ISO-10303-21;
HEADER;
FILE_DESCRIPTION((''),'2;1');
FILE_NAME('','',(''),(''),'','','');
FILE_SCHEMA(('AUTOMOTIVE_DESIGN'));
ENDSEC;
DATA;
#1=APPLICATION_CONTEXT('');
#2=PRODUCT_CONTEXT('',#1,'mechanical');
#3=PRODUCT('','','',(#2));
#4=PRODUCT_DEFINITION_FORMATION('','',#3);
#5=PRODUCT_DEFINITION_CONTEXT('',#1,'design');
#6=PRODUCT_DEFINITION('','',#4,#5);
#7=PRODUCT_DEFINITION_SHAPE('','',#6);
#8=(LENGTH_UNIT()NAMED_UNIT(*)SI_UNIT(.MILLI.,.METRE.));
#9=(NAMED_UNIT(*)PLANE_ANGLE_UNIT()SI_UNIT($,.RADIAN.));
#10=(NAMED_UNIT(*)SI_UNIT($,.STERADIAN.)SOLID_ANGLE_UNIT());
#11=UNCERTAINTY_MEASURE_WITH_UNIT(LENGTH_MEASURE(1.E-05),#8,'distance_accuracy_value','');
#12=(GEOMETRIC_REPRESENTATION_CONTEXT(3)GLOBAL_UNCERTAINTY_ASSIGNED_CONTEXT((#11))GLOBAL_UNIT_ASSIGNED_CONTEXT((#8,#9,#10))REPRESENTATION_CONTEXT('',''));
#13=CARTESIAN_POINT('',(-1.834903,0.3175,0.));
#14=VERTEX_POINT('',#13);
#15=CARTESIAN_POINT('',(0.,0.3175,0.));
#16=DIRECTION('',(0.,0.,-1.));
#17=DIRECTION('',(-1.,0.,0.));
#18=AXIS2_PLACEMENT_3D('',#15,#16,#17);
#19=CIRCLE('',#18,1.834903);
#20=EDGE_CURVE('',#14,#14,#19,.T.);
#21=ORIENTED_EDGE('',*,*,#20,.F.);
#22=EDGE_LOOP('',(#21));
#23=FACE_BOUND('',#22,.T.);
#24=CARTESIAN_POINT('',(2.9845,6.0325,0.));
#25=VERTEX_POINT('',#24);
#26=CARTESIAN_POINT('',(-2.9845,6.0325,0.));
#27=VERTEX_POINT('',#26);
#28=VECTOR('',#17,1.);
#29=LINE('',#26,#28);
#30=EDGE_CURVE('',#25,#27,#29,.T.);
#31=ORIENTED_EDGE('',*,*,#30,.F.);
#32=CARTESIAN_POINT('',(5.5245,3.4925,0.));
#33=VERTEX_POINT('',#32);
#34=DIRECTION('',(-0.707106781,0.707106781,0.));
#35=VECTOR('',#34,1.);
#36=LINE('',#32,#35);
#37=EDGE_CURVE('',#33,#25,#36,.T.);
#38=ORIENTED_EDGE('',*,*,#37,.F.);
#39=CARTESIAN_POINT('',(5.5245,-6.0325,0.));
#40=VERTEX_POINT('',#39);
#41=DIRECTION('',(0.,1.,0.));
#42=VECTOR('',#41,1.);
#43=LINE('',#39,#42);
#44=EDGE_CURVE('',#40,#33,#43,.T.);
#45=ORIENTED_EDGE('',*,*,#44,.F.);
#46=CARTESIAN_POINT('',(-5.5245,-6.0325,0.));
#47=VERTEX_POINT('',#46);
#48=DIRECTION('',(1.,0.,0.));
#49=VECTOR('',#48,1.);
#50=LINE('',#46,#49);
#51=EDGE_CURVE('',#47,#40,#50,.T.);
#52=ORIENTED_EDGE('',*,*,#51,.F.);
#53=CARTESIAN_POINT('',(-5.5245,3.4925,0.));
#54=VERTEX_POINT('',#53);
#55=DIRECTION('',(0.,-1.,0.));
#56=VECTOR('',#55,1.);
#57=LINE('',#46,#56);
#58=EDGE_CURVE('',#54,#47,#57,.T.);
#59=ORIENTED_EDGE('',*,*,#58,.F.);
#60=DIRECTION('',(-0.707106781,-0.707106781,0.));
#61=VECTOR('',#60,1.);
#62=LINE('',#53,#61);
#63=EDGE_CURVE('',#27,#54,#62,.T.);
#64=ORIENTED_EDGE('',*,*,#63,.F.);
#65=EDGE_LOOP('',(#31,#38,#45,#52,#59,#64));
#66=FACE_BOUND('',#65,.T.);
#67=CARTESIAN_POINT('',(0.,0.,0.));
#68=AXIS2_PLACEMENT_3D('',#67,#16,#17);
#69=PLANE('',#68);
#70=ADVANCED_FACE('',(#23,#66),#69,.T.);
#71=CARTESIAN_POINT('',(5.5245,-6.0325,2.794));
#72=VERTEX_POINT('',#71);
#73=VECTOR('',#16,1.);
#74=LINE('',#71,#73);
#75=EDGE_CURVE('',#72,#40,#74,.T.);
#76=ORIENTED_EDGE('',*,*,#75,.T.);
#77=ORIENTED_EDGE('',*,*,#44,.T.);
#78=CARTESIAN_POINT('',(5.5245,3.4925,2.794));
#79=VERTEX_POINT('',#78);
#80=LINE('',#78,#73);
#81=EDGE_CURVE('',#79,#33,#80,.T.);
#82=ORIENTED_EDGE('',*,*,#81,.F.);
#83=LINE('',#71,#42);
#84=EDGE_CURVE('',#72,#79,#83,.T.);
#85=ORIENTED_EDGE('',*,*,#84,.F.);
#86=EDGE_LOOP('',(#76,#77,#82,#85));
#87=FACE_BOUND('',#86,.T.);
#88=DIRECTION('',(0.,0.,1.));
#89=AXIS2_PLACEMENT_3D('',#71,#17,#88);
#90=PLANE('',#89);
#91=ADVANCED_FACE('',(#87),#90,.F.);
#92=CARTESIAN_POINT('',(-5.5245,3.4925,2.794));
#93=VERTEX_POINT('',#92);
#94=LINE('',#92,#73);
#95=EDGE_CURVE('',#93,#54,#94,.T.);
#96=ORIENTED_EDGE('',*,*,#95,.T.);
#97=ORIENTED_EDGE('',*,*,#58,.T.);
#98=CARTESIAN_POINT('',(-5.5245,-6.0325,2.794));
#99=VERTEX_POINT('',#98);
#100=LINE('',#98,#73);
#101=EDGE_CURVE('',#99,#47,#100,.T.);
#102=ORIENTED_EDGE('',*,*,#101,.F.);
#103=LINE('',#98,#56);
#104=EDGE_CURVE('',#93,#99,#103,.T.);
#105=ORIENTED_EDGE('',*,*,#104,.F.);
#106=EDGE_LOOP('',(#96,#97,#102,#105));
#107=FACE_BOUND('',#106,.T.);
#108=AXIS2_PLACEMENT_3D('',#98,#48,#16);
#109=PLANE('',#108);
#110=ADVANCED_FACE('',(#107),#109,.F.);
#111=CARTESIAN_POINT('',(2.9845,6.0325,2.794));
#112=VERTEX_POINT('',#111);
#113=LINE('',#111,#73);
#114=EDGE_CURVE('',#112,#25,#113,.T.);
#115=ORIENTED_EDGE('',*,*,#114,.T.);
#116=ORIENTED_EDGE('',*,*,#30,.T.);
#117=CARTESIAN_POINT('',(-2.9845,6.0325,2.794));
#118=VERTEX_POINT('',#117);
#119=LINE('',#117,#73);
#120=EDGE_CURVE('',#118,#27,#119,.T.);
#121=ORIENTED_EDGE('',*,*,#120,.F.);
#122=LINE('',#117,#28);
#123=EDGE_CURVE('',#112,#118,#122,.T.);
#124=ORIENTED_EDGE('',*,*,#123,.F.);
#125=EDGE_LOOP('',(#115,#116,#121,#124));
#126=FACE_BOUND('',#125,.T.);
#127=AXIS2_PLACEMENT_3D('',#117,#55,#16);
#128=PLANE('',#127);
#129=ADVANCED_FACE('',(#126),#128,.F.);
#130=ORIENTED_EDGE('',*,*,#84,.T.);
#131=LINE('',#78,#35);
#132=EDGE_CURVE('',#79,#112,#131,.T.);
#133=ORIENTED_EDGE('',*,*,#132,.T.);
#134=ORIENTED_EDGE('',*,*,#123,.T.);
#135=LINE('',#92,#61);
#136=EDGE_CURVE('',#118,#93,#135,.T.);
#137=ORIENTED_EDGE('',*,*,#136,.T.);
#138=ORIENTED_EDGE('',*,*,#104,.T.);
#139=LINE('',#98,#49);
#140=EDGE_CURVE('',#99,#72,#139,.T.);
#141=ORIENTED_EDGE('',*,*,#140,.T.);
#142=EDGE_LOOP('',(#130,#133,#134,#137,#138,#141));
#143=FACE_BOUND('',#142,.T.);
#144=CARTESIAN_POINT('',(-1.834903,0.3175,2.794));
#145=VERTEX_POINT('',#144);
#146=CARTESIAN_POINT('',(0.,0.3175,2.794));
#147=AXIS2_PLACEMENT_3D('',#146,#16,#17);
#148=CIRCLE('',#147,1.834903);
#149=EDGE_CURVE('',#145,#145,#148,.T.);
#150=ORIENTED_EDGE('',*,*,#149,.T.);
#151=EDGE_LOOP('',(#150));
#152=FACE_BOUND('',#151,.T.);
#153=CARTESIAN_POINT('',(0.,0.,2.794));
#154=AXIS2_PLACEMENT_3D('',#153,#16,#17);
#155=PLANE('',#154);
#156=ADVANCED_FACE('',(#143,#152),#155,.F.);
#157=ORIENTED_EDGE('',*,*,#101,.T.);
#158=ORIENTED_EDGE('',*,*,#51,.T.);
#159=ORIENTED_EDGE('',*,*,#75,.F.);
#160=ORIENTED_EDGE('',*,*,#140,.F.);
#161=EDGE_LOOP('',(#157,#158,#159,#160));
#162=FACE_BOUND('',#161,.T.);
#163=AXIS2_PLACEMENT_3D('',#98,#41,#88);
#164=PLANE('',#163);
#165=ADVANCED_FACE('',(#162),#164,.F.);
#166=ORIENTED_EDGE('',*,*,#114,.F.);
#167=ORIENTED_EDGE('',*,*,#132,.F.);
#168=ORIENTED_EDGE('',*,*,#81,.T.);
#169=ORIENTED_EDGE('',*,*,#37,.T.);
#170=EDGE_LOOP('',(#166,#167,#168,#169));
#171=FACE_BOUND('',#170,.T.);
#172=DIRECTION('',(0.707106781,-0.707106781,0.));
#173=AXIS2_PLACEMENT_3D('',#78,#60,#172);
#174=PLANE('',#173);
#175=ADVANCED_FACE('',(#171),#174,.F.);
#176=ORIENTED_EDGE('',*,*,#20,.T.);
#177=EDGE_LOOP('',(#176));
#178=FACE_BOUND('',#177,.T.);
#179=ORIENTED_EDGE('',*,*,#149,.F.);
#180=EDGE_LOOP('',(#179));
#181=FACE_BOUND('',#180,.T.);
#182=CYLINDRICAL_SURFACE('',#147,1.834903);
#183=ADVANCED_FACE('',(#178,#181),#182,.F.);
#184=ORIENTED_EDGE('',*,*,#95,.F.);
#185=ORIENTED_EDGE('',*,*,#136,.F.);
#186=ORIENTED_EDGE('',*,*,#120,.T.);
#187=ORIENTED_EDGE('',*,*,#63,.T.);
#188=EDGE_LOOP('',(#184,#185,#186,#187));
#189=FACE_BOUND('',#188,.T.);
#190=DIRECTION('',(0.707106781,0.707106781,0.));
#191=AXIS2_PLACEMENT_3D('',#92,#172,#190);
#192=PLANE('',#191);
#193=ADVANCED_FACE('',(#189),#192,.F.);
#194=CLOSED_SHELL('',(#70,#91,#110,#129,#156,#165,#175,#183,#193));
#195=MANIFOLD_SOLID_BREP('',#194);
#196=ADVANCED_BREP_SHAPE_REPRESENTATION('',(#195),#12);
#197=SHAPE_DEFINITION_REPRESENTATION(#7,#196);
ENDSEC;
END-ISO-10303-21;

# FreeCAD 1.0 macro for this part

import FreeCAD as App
import Part
import Sketcher
Q = App.Units.Quantity

doc = App.newDocument("Part")
body = doc.addObject("PartDesign::Body", "Body")

sketch1 = body.newObject("Sketcher::SketchObject", "Sketch")
sketch1.AttachmentSupport = (doc.getObject("XY_Plane"), [""])
sketch1.MapMode = "FlatFace"
sketch1.addGeometry([
    Part.LineSegment(App.Vector(-3, 6, 0), App.Vector(-5.5, 3.5, 0)),
    Part.LineSegment(App.Vector(-5.5, 3.5, 0), App.Vector(-5.5, -6, 0)),
    Part.LineSegment(App.Vector(-5.5, -6, 0), App.Vector(5.5, -6, 0)),
    Part.LineSegment(App.Vector(5.5, -6, 0), App.Vector(5.5, 3.5, 0)),
    Part.LineSegment(App.Vector(5.5, 3.5, 0), App.Vector(3, 6, 0)),
    Part.LineSegment(App.Vector(3, 6, 0), App.Vector(-3, 6, 0)),
], False)
sketch1.addConstraint([
    Sketcher.Constraint("Coincident", 0, 2, 1, 1),
    Sketcher.Constraint("Coincident", 1, 2, 2, 1),
    Sketcher.Constraint("Coincident", 2, 2, 3, 1),
    Sketcher.Constraint("Coincident", 3, 2, 4, 1),
    Sketcher.Constraint("Coincident", 4, 2, 5, 1),
    Sketcher.Constraint("Coincident", 5, 2, 0, 1),
    Sketcher.Constraint("Vertical", 1),
    Sketcher.Constraint("Horizontal", 2),
    Sketcher.Constraint("Vertical", 3),
    Sketcher.Constraint("Horizontal", 5),
    Sketcher.Constraint("Symmetric", 0, 2, 3, 2, -2),
    Sketcher.Constraint("Perpendicular", 0, 4),
    Sketcher.Constraint("Equal", 0, 4),
    Sketcher.Constraint("DistanceX", 4, 2, 3, 2, Q("0.1 in")),
    Sketcher.Constraint("DistanceX", 2, 1, 2, 2, Q("0.435 in")),
    Sketcher.Constraint("DistanceY", 1, 2, 1, 1, Q("0.375 in")),
    Sketcher.Constraint("DistanceY", -1, 1, 0, 2, Q("0.1375 in")),
])
pad1 = body.newObject("PartDesign::Pad", "Pad")
pad1.Profile = sketch1
pad1.Length = Q("0.11 in")

sketch2 = body.newObject("Sketcher::SketchObject", "Sketch001")
sketch2.AttachmentSupport = (doc.getObject("XY_Plane"), [""])
sketch2.MapMode = "FlatFace"
sketch2.addGeometry(Part.Circle(App.Vector(0, 0.3, 0), App.Vector(0, 0, 1), 1.8), False)
sketch2.addConstraint([
    Sketcher.Constraint("PointOnObject", 0, 3, -2),
    Sketcher.Constraint("Diameter", 0, 3.669806),
    Sketcher.Constraint("DistanceY", -1, 1, 0, 3, Q("0.0125 in")),
])
pocket1 = body.newObject("PartDesign::Pocket", "Pocket")
pocket1.Profile = sketch2
pocket1.Length = Q("0.11 in")
pocket1.Reversed = True

doc.recompute()
